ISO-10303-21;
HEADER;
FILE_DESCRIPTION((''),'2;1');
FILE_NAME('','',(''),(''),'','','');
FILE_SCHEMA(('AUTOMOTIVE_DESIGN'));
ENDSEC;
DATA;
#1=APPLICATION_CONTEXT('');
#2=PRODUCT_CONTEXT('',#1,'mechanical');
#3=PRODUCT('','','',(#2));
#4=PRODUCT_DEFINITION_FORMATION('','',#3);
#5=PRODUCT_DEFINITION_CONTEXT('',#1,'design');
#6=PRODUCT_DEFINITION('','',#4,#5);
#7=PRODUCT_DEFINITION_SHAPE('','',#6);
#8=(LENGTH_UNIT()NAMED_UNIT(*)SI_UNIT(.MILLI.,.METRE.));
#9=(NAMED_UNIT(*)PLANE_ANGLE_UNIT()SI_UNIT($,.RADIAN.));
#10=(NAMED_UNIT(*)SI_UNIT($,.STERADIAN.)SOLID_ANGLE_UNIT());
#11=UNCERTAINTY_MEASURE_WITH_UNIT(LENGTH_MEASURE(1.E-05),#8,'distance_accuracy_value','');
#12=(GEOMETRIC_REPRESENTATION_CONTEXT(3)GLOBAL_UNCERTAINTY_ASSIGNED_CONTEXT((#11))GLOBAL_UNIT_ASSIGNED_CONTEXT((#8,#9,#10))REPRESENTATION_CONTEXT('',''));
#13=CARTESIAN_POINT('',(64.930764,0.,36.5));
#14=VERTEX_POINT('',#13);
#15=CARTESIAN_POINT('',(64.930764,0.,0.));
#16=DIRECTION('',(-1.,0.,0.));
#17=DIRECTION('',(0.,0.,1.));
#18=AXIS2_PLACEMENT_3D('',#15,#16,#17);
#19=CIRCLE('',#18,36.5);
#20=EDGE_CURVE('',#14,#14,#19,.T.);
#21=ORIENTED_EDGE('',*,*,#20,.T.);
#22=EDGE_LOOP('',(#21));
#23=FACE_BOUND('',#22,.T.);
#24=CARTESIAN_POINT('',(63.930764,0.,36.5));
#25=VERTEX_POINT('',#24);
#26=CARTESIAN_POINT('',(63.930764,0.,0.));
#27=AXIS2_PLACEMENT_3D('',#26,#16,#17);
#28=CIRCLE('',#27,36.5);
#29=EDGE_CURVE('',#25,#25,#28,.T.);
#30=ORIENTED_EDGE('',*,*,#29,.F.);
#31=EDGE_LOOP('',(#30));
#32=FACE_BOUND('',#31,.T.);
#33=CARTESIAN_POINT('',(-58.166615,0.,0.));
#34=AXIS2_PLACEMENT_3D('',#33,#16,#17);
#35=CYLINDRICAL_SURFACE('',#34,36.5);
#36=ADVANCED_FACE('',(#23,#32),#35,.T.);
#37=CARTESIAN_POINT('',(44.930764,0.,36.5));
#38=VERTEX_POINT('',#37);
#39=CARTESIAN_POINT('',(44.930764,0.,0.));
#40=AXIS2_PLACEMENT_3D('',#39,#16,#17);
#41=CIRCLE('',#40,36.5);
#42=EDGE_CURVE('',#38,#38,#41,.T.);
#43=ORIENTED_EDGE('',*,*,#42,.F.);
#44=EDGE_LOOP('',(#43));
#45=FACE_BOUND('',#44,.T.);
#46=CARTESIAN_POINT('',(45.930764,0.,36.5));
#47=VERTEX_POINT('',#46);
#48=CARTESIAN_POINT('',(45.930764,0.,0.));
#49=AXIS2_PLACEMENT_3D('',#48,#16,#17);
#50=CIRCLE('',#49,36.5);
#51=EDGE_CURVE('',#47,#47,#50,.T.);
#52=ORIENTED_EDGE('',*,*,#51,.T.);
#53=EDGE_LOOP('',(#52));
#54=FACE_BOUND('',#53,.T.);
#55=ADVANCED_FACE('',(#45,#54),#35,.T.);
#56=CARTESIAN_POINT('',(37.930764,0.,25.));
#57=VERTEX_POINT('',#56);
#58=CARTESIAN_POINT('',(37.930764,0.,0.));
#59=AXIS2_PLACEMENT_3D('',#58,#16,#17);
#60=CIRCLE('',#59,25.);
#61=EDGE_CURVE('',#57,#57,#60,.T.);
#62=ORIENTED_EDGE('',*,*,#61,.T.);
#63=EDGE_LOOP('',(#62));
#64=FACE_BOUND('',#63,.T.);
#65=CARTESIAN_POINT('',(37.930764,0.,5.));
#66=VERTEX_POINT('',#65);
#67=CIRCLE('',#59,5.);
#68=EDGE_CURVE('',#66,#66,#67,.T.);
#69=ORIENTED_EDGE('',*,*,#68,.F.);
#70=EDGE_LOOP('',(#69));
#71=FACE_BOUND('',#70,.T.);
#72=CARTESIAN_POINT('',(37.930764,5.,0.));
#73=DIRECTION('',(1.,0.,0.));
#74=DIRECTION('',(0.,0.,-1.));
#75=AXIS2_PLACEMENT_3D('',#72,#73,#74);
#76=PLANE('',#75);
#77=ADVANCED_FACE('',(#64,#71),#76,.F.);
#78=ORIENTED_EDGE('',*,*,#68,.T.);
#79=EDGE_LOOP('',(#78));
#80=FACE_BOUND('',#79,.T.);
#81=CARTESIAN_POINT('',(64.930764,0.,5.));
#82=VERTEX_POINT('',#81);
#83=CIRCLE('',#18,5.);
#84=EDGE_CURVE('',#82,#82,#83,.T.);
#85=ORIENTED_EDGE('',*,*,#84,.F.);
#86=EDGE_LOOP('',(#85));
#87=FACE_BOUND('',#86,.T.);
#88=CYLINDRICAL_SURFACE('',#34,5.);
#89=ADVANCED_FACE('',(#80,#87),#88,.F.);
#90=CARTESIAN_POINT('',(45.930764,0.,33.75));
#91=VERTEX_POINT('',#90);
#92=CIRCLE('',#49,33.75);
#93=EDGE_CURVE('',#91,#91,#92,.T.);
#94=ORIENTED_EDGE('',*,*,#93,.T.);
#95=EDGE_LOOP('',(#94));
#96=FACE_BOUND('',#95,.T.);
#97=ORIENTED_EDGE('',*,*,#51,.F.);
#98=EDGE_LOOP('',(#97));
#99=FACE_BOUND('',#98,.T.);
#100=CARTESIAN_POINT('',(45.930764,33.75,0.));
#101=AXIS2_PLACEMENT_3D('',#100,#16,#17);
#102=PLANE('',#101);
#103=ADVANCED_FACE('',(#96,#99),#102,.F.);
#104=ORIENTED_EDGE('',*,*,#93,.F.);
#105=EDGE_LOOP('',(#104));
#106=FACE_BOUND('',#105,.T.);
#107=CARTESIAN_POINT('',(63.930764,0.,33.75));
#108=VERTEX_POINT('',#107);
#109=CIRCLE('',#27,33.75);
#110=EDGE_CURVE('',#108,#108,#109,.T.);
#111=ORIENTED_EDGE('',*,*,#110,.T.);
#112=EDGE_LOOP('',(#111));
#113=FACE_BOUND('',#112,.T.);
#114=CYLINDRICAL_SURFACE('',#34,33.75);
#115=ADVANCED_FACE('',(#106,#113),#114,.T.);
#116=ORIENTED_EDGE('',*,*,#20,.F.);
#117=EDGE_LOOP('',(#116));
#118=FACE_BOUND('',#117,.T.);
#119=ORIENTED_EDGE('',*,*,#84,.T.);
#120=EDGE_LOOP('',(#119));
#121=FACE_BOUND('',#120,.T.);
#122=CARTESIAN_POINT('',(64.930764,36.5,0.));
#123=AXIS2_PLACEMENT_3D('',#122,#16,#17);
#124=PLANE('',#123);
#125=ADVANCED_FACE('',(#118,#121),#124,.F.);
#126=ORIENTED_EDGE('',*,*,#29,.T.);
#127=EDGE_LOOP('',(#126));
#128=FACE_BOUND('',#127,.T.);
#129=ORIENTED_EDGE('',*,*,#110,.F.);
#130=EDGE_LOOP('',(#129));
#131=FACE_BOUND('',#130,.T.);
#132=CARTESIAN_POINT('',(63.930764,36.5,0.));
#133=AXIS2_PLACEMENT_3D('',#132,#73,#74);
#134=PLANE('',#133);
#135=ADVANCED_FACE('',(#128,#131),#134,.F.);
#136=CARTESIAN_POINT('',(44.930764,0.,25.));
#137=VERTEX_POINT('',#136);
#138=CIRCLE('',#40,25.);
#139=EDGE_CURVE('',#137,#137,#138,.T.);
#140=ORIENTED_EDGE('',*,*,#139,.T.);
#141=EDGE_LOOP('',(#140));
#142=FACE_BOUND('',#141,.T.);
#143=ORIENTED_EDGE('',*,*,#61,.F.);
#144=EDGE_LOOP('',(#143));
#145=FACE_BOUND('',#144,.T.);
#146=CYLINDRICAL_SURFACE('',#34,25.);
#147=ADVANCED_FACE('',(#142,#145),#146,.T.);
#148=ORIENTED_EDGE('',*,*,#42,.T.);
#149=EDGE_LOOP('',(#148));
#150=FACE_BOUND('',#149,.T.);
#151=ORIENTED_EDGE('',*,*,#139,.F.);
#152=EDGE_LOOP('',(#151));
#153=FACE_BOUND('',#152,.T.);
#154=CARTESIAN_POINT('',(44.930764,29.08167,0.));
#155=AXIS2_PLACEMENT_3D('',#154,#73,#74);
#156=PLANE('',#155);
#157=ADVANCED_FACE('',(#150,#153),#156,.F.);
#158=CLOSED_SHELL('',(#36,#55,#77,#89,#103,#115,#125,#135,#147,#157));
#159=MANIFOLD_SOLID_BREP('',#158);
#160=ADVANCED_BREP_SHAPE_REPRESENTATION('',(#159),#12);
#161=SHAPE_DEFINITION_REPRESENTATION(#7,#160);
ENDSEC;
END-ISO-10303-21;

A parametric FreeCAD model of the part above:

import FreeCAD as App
import Part
import Sketcher


def add_polygon(sketch, points):
    """Adds a closed chain of lines whose ends are joined by coincident constraints."""
    first, n = sketch.GeometryCount, len(points)
    for a, b in zip(points, points[1:] + points[:1]):
        sketch.addGeometry(Part.LineSegment(App.Vector(*a, 0), App.Vector(*b, 0)), False)
    for i in range(n):
        sketch.addConstraint(Sketcher.Constraint("Coincident", first + i, 2, first + (i + 1) % n, 1))

doc = App.newDocument("Part")
body = doc.addObject("PartDesign::Body", "Body")

# Sketch on XY plane
sketch1 = body.newObject("Sketcher::SketchObject", "Sketch")
sketch1.AttachmentSupport = (doc.getObject("XY_Plane"), [""])
sketch1.MapMode = "FlatFace"
add_polygon(sketch1, [(64.9, 36.5), (63.9, 36.5), (63.9, 33.8), (45.9, 33.8), (45.9, 36.5), (44.9, 36.5), (44.9, 25), (37.9, 25), (37.9, 5), (64.9, 5)])  # lines 0-9
sketch1.addConstraint([
    Sketcher.Constraint("Horizontal", 0),
    Sketcher.Constraint("Vertical", 1),
    Sketcher.Constraint("Horizontal", 2),
    Sketcher.Constraint("Vertical", 3),
    Sketcher.Constraint("Horizontal", 4),
    Sketcher.Constraint("Vertical", 5),
    Sketcher.Constraint("Horizontal", 6),
    Sketcher.Constraint("Vertical", 7),
    Sketcher.Constraint("Horizontal", 8),
    Sketcher.Constraint("Vertical", 9),
    Sketcher.Constraint("Horizontal", 0, 2, 3, 2),
    Sketcher.Constraint("Equal", 0, 4),
    Sketcher.Constraint("DistanceX", 0, 2, 0, 1, 1.0),
    Sketcher.Constraint("DistanceX", 2, 2, 2, 1, 18.0),
    Sketcher.Constraint("DistanceX", 6, 2, 6, 1, 7.0),
    Sketcher.Constraint("DistanceY", 7, 2, 7, 1, 20.0),
    Sketcher.Constraint("DistanceY", 5, 2, 5, 1, 11.5),
    Sketcher.Constraint("DistanceY", -1, 1, 5, 2, 25.0),
    Sketcher.Constraint("DistanceY", 1, 2, 1, 1, 2.75),
    Sketcher.Constraint("DistanceX", -1, 1, 0, 2, 63.930764),
])
revolution = body.newObject("PartDesign::Revolution", "Revolution")
revolution.Profile = sketch1
revolution.ReferenceAxis = (sketch1, ["H_Axis"])
revolution.Angle = 360

doc.recompute()
